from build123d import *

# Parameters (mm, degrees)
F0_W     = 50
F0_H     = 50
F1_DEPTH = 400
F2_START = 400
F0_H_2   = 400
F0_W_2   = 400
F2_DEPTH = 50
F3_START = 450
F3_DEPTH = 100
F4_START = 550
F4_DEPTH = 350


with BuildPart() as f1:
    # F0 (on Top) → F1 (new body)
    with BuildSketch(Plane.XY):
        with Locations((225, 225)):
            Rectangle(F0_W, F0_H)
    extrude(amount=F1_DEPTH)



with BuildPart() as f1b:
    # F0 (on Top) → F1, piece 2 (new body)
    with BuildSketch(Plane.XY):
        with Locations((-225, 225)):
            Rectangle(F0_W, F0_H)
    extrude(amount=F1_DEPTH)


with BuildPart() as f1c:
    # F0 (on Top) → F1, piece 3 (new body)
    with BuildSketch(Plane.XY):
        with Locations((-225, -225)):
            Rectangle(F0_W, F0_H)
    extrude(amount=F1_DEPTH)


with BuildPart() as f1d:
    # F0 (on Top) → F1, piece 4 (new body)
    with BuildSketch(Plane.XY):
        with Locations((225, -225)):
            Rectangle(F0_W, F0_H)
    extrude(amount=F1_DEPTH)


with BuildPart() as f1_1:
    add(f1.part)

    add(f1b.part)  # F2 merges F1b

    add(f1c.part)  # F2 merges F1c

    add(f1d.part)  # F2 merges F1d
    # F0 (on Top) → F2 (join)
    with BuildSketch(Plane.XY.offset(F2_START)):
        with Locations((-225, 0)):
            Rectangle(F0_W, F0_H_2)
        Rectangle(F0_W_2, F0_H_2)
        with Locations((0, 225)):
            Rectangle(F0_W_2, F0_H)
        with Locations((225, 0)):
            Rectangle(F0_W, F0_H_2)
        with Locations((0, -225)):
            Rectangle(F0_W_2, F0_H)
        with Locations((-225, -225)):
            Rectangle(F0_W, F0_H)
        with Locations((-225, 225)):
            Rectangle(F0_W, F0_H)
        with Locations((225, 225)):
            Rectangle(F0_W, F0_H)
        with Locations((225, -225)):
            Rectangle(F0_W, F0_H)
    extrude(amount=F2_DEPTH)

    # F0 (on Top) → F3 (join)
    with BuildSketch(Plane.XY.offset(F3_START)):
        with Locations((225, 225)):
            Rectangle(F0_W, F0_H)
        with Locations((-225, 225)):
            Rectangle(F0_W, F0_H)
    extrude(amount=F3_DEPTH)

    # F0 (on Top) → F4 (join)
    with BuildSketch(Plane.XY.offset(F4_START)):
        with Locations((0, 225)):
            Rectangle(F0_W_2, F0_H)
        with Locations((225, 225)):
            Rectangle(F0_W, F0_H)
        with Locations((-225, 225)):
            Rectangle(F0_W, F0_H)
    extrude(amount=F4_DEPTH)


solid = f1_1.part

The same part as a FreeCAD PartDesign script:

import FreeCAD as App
import Part
import Sketcher

V = App.Vector
Q = App.Units.Quantity


def add_polygon(sketch, points):
    """Adds a closed chain of lines whose ends are joined by coincident constraints."""
    first, n = sketch.GeometryCount, len(points)
    for a, b in zip(points, points[1:] + points[:1]):
        sketch.addGeometry(Part.LineSegment(App.Vector(*a, 0), App.Vector(*b, 0)), False)
    for i in range(n):
        sketch.addConstraint(Sketcher.Constraint("Coincident", first + i, 2, first + (i + 1) % n, 1))

doc = App.newDocument("Part")
body = doc.addObject("PartDesign::Body", "Body")

# Sketch on XY plane
sketch1 = body.newObject("Sketcher::SketchObject", "Sketch")
sketch1.AttachmentSupport = (doc.getObject("XY_Plane"), [""])
sketch1.MapMode = "FlatFace"
add_polygon(sketch1, [(200, 250), (200, 200), (250, 200), (250, 250)])  # lines 0-3
sketch1.addConstraint([
    Sketcher.Constraint("Vertical", 0),
    Sketcher.Constraint("Horizontal", 1),
    Sketcher.Constraint("Vertical", 2),
    Sketcher.Constraint("Horizontal", 3),
    Sketcher.Constraint("Equal", 3, 0),
    Sketcher.Constraint("DistanceX", 1, 1, 1, 2, Q("50 mm")),
    Sketcher.Constraint("DistanceX", -1, 1, 0, 2, Q("200 mm")),
    Sketcher.Constraint("DistanceY", -1, 1, 0, 2, Q("200 mm")),
])
pad1 = body.newObject("PartDesign::Pad", "Pad")
pad1.Profile = sketch1
pad1.Length = 400
body2 = doc.addObject("PartDesign::Body", "Body001")

# Sketch on XY plane
sketch2 = body2.newObject("Sketcher::SketchObject", "Sketch001")
sketch2.AttachmentSupport = (doc.getObject("XY_Plane001"), [""])
sketch2.MapMode = "FlatFace"
add_polygon(sketch2, [(-250, 250), (-250, 200), (-200, 200), (-200, 250)])  # lines 0-3
sketch2.addConstraint([
    Sketcher.Constraint("Vertical", 0),
    Sketcher.Constraint("Horizontal", 1),
    Sketcher.Constraint("Vertical", 2),
    Sketcher.Constraint("Horizontal", 3),
    Sketcher.Constraint("Equal", 3, 0),
    Sketcher.Constraint("DistanceX", 1, 1, 1, 2, Q("50 mm")),
    Sketcher.Constraint("DistanceX", 0, 2, -1, 1, Q("250 mm")),
    Sketcher.Constraint("DistanceY", -1, 1, 0, 2, Q("200 mm")),
])
pad2 = body2.newObject("PartDesign::Pad", "Pad001")
pad2.Profile = sketch2
pad2.Length = 400
body3 = doc.addObject("PartDesign::Body", "Body002")

# Sketch on XY plane
sketch3 = body3.newObject("Sketcher::SketchObject", "Sketch002")
sketch3.AttachmentSupport = (doc.getObject("XY_Plane002"), [""])
sketch3.MapMode = "FlatFace"
add_polygon(sketch3, [(-250, -200), (-250, -250), (-200, -250), (-200, -200)])  # lines 0-3
sketch3.addConstraint([
    Sketcher.Constraint("Vertical", 0),
    Sketcher.Constraint("Horizontal", 1),
    Sketcher.Constraint("Vertical", 2),
    Sketcher.Constraint("Horizontal", 3),
    Sketcher.Constraint("Equal", 3, 0),
    Sketcher.Constraint("DistanceX", 1, 1, 1, 2, Q("50 mm")),
    Sketcher.Constraint("DistanceX", 0, 2, -1, 1, Q("250 mm")),
    Sketcher.Constraint("DistanceY", 0, 2, -1, 1, Q("250 mm")),
])
pad3 = body3.newObject("PartDesign::Pad", "Pad002")
pad3.Profile = sketch3
pad3.Length = 400
body4 = doc.addObject("PartDesign::Body", "Body003")

# Sketch on XY plane
sketch4 = body4.newObject("Sketcher::SketchObject", "Sketch003")
sketch4.AttachmentSupport = (doc.getObject("XY_Plane003"), [""])
sketch4.MapMode = "FlatFace"
add_polygon(sketch4, [(200, -200), (200, -250), (250, -250), (250, -200)])  # lines 0-3
sketch4.addConstraint([
    Sketcher.Constraint("Vertical", 0),
    Sketcher.Constraint("Horizontal", 1),
    Sketcher.Constraint("Vertical", 2),
    Sketcher.Constraint("Horizontal", 3),
    Sketcher.Constraint("Equal", 3, 0),
    Sketcher.Constraint("DistanceX", 1, 1, 1, 2, Q("50 mm")),
    Sketcher.Constraint("DistanceX", -1, 1, 0, 2, Q("200 mm")),
    Sketcher.Constraint("DistanceY", 0, 2, -1, 1, Q("250 mm")),
])
pad4 = body4.newObject("PartDesign::Pad", "Pad003")
pad4.Profile = sketch4
pad4.Length = 400
body.AllowCompound = True
doc.recompute()

boolean = body.newObject("PartDesign::Boolean", "Boolean")
boolean.Type = "Fuse"
boolean.addObjects([body2])
doc.recompute()

boolean2 = body.newObject("PartDesign::Boolean", "Boolean001")
boolean2.Type = "Fuse"
boolean2.addObjects([body3])
doc.recompute()

boolean3 = body.newObject("PartDesign::Boolean", "Boolean002")
boolean3.Type = "Fuse"
boolean3.addObjects([body4])

# Sketch on XY plane
sketch5 = body.newObject("Sketcher::SketchObject", "Sketch004")
sketch5.AttachmentSupport = (doc.getObject("XY_Plane"), [""])
sketch5.MapMode = "FlatFace"
sketch5.AttachmentOffset = App.Placement(V(0, 0, 400), App.Rotation())
add_polygon(sketch5, [(-250, -250), (250, -250), (250, 250), (-250, 250)])  # lines 0-3
sketch5.addConstraint([
    Sketcher.Constraint("Horizontal", 0),
    Sketcher.Constraint("Vertical", 1),
    Sketcher.Constraint("Horizontal", 2),
    Sketcher.Constraint("Vertical", 3),
    Sketcher.Constraint("Symmetric", 0, 2, 2, 2, -1, 1),
    Sketcher.Constraint("Equal", 2, 1),
    Sketcher.Constraint("DistanceX", 0, 1, 0, 2, Q("500 mm")),
])
pad5 = body.newObject("PartDesign::Pad", "Pad004")
pad5.Profile = sketch5
pad5.Length = 50

# Sketch on XY plane
sketch6 = body.newObject("Sketcher::SketchObject", "Sketch005")
sketch6.AttachmentSupport = (doc.getObject("XY_Plane"), [""])
sketch6.MapMode = "FlatFace"
sketch6.AttachmentOffset = App.Placement(V(0, 0, 450), App.Rotation())
add_polygon(sketch6, [(200, 250), (200, 200), (250, 200), (250, 250)])  # lines 0-3
add_polygon(sketch6, [(-250, 250), (-250, 200), (-200, 200), (-200, 250)])  # lines 4-7
sketch6.addConstraint([
    Sketcher.Constraint("Vertical", 0),
    Sketcher.Constraint("Horizontal", 1),
    Sketcher.Constraint("Vertical", 2),
    Sketcher.Constraint("Horizontal", 3),
    Sketcher.Constraint("Vertical", 4),
    Sketcher.Constraint("Horizontal", 5),
    Sketcher.Constraint("Vertical", 6),
    Sketcher.Constraint("Horizontal", 7),
    Sketcher.Constraint("Symmetric", 1, 2, 4, 2, -2),
    Sketcher.Constraint("Symmetric", 3, 2, 6, 2, -2),
    Sketcher.Constraint("Equal", 7, 0),
    Sketcher.Constraint("DistanceX", 1, 1, 1, 2, Q("50 mm")),
    Sketcher.Constraint("DistanceX", -1, 1, 0, 2, Q("200 mm")),
    Sketcher.Constraint("DistanceY", -1, 1, 0, 2, Q("200 mm")),
])
pad6 = body.newObject("PartDesign::Pad", "Pad005")
pad6.Profile = sketch6
pad6.Length = 100

# Sketch on XY plane
sketch7 = body.newObject("Sketcher::SketchObject", "Sketch006")
sketch7.AttachmentSupport = (doc.getObject("XY_Plane"), [""])
sketch7.MapMode = "FlatFace"
sketch7.AttachmentOffset = App.Placement(V(0, 0, 550), App.Rotation())
add_polygon(sketch7, [(250, 200), (250, 250), (-250, 250), (-250, 200)])  # lines 0-3
sketch7.addConstraint([
    Sketcher.Constraint("Vertical", 0),
    Sketcher.Constraint("Horizontal", 1),
    Sketcher.Constraint("Vertical", 2),
    Sketcher.Constraint("Horizontal", 3),
    Sketcher.Constraint("DistanceX", 1, 2, 1, 1, Q("500 mm")),
    Sketcher.Constraint("DistanceY", 0, 1, 0, 2, Q("50 mm")),
    Sketcher.Constraint("DistanceX", -1, 1, 0, 2, Q("250 mm")),
    Sketcher.Constraint("DistanceY", -1, 1, 0, 2, Q("250 mm")),
])
pad7 = body.newObject("PartDesign::Pad", "Pad006")
pad7.Profile = sketch7
pad7.Length = 350

doc.recompute()
